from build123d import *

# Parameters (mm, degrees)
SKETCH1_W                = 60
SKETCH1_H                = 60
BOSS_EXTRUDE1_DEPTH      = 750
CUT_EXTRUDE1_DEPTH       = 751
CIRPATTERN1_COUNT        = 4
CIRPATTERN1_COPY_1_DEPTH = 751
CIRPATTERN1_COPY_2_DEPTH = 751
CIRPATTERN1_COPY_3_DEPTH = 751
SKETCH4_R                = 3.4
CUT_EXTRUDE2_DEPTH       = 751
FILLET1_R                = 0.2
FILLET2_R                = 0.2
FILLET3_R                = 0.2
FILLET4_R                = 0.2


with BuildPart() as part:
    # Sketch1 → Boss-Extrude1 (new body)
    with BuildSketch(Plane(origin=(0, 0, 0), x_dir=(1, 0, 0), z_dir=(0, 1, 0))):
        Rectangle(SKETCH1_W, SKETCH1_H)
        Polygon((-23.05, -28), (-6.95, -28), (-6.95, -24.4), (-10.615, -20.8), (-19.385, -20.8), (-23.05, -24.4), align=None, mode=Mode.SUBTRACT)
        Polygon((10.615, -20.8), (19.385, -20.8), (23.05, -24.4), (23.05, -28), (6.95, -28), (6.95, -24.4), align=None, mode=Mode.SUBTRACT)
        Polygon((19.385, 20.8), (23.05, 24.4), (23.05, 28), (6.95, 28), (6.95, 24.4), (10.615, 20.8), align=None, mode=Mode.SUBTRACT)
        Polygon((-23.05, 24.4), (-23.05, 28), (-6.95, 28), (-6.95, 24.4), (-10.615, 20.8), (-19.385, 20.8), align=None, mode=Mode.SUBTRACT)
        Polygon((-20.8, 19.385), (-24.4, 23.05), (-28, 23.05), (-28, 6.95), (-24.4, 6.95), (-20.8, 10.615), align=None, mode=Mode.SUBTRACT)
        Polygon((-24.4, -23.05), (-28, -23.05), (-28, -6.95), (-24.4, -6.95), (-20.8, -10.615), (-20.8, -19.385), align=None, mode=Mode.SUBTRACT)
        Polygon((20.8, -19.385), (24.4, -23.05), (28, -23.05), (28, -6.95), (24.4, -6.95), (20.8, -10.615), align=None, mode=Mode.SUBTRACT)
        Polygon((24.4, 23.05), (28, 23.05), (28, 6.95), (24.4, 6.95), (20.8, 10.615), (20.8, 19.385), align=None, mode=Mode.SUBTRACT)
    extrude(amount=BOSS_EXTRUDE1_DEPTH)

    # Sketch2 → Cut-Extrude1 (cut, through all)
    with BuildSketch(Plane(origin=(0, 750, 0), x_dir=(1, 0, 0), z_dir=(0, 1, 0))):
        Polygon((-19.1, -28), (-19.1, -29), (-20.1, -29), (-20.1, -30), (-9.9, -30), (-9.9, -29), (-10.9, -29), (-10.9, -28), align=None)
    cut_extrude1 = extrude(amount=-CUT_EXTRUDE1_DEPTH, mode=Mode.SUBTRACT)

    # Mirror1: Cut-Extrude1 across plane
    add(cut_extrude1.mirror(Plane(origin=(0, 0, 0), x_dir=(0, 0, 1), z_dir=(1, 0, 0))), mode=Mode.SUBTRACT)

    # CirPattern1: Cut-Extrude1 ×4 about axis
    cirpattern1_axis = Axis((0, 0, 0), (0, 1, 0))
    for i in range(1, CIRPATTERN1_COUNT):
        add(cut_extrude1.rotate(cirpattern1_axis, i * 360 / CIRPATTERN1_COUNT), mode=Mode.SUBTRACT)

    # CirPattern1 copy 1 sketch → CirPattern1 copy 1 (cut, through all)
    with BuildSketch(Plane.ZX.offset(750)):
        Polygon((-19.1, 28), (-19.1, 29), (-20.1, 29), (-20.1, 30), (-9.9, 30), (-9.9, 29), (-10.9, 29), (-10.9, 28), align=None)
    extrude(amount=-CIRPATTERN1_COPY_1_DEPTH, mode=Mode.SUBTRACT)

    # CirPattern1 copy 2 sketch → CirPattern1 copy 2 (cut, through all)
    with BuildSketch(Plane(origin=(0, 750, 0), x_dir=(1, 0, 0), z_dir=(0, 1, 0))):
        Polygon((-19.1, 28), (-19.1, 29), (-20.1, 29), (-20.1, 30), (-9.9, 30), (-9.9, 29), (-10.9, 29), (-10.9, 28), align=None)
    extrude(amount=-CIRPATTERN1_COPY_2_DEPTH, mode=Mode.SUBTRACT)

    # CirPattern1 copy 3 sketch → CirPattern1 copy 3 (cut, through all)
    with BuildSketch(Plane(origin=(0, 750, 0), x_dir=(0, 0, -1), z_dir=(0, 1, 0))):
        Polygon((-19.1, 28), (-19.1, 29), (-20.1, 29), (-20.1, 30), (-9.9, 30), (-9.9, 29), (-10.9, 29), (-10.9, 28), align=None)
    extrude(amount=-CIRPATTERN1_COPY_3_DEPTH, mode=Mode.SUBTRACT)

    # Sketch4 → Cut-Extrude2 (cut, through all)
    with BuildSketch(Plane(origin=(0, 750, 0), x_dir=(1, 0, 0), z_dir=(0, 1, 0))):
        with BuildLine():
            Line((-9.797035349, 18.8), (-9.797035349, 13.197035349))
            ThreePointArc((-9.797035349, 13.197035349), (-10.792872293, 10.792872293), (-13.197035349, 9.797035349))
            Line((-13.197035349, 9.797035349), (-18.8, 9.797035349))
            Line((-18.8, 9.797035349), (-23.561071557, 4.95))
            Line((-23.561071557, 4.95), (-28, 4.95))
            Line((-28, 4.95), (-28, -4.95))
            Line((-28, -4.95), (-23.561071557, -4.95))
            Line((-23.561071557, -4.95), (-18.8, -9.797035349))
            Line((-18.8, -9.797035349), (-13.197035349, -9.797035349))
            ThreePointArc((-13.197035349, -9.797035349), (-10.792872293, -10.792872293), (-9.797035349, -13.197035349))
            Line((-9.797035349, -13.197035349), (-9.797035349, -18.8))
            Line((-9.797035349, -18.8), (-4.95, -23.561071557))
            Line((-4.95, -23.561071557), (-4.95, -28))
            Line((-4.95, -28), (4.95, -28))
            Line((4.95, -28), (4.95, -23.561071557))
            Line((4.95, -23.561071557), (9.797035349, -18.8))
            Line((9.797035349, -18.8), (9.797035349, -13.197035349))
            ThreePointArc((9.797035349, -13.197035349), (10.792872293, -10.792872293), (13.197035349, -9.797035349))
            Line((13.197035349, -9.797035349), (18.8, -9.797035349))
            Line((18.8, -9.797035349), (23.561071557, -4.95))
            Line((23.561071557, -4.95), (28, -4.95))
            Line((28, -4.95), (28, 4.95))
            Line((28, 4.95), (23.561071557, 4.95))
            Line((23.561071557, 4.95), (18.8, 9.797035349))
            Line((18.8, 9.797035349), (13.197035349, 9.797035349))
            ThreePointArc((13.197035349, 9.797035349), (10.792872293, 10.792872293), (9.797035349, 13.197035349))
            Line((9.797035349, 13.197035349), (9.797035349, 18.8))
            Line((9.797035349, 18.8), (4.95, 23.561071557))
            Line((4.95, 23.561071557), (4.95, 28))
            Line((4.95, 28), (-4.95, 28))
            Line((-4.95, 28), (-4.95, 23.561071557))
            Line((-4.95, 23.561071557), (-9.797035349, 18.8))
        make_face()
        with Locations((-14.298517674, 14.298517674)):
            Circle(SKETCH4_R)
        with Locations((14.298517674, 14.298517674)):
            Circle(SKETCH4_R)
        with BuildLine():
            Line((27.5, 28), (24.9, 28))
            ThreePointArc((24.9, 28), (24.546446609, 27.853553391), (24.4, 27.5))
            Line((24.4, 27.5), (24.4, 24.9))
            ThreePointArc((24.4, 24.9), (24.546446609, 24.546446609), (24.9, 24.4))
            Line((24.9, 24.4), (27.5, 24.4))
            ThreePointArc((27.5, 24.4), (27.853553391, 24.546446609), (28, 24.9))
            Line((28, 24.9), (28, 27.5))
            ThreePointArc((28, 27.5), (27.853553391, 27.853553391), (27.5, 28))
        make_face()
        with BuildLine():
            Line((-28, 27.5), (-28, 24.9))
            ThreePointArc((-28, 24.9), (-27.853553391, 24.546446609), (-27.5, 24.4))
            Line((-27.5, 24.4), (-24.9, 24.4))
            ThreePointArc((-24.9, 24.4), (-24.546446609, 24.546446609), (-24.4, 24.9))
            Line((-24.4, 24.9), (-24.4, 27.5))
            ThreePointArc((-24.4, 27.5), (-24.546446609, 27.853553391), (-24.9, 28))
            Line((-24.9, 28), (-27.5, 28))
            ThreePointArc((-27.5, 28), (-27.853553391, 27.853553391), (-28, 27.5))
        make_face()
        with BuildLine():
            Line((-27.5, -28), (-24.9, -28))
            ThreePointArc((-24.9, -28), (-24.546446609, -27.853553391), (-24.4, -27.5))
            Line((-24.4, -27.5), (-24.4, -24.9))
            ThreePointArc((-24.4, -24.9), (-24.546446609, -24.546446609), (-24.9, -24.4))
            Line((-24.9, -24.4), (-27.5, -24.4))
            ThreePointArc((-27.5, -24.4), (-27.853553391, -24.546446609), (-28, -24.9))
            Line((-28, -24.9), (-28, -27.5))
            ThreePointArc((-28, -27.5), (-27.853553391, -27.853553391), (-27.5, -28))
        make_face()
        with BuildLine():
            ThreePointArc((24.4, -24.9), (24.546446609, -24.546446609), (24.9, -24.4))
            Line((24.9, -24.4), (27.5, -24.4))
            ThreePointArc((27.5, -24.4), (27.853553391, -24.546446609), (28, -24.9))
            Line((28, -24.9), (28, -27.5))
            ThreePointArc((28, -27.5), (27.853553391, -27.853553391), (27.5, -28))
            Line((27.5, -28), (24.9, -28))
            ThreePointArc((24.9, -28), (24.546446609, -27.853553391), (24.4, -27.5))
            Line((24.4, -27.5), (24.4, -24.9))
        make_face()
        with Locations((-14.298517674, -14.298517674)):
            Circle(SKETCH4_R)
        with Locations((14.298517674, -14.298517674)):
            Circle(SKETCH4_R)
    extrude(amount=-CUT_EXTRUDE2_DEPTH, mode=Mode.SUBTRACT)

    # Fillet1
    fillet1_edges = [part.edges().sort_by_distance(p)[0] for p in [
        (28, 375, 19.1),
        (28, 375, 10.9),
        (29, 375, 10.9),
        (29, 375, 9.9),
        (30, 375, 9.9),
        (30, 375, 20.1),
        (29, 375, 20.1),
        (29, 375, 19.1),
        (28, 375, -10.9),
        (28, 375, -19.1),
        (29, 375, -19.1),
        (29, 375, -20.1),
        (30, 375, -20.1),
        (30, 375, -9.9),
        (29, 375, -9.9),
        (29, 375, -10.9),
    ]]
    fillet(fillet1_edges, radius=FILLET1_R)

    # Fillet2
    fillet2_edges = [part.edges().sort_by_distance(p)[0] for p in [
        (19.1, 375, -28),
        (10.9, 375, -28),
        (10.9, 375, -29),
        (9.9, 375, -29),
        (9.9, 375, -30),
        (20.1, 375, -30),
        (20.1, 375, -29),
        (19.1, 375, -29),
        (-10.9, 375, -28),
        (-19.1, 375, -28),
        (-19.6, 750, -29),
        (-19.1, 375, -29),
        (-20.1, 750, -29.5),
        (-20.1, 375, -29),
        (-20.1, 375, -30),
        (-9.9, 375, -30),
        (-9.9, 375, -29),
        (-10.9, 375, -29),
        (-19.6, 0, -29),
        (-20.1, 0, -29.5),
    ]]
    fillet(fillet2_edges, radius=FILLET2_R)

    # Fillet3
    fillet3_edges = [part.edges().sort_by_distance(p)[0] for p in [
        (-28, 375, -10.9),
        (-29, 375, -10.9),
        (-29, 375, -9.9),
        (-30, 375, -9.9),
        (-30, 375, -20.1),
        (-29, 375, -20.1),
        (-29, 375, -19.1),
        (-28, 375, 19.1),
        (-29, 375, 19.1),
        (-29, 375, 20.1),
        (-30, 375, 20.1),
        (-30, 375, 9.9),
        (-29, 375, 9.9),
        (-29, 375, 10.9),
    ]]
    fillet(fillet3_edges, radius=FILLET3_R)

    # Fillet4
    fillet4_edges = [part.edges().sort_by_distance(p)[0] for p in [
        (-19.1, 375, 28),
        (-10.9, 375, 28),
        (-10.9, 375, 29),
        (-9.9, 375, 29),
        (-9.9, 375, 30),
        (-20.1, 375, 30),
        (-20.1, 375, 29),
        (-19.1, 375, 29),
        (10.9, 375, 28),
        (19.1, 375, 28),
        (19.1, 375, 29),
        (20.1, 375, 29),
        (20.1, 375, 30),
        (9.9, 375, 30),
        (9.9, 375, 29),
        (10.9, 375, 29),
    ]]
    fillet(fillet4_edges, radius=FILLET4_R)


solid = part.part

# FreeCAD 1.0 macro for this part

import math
import FreeCAD as App
import Part
import Sketcher
Q = App.Units.Quantity


def edges_at(feature, points):
    """Names of the edges that pass closest to the given points."""
    edges = feature.Shape.Edges
    near = lambda p: min(range(len(edges)), key=lambda i: edges[i].distToShape(Part.Vertex(*p))[0])
    return sorted({f"Edge{near(p) + 1}" for p in points})


def add_polygon(sketch, points):
    """Adds a closed chain of lines whose ends are joined by coincident constraints."""
    first, n = sketch.GeometryCount, len(points)
    for a, b in zip(points, points[1:] + points[:1]):
        sketch.addGeometry(Part.LineSegment(App.Vector(*a, 0), App.Vector(*b, 0)), False)
    for i in range(n):
        sketch.addConstraint(Sketcher.Constraint("Coincident", first + i, 2, first + (i + 1) % n, 1))

doc = App.newDocument("Part")
body = doc.addObject("PartDesign::Body", "Body")

# Sketch on XZ plane
sketch1 = body.newObject("Sketcher::SketchObject", "Sketch")
sketch1.AttachmentSupport = (doc.getObject("XZ_Plane"), [""])
sketch1.MapMode = "FlatFace"
add_polygon(sketch1, [(-30, -30), (-30, 30), (30, 30), (30, -30)])  # lines 0-3
add_polygon(sketch1, [(-7, 28), (-23.1, 28), (-23.1, 24.4), (-19.4, 20.8), (-10.6, 20.8), (-7, 24.4)])  # lines 4-9
add_polygon(sketch1, [(-20.8, 19.4), (-24.4, 23.1), (-28, 23.1), (-28, 7), (-24.4, 7), (-20.8, 10.6)])  # lines 10-15
add_polygon(sketch1, [(7, 24.4), (10.6, 20.8), (19.4, 20.8), (23.1, 24.4), (23.1, 28), (7, 28)])  # lines 16-21
add_polygon(sketch1, [(24.4, 23.1), (20.8, 19.4), (20.8, 10.6), (24.4, 7), (28, 7), (28, 23.1)])  # lines 22-27
add_polygon(sketch1, [(-24.4, -23.1), (-20.8, -19.4), (-20.8, -10.6), (-24.4, -7), (-28, -7), (-28, -23.1)])  # lines 28-33
add_polygon(sketch1, [(-19.4, -20.8), (-23.1, -24.4), (-23.1, -28), (-7, -28), (-7, -24.4), (-10.6, -20.8)])  # lines 34-39
add_polygon(sketch1, [(20.8, -19.4), (24.4, -23.1), (28, -23.1), (28, -7), (24.4, -7), (20.8, -10.6)])  # lines 40-45
add_polygon(sketch1, [(23.1, -24.4), (19.4, -20.8), (10.6, -20.8), (7, -24.4), (7, -28), (23.1, -28)])  # lines 46-51
sketch1.addConstraint([
    Sketcher.Constraint("Vertical", 0),
    Sketcher.Constraint("Horizontal", 1),
    Sketcher.Constraint("Vertical", 2),
    Sketcher.Constraint("Horizontal", 3),
    Sketcher.Constraint("Horizontal", 4),
    Sketcher.Constraint("Vertical", 5),
    Sketcher.Constraint("Horizontal", 7),
    Sketcher.Constraint("Vertical", 9),
    Sketcher.Constraint("Horizontal", 11),
    Sketcher.Constraint("Vertical", 12),
    Sketcher.Constraint("Horizontal", 13),
    Sketcher.Constraint("Vertical", 15),
    Sketcher.Constraint("Horizontal", 17),
    Sketcher.Constraint("Vertical", 19),
    Sketcher.Constraint("Horizontal", 20),
    Sketcher.Constraint("Vertical", 21),
    Sketcher.Constraint("Vertical", 23),
    Sketcher.Constraint("Horizontal", 25),
    Sketcher.Constraint("Vertical", 26),
    Sketcher.Constraint("Horizontal", 27),
    Sketcher.Constraint("Vertical", 29),
    Sketcher.Constraint("Horizontal", 31),
    Sketcher.Constraint("Vertical", 32),
    Sketcher.Constraint("Horizontal", 33),
    Sketcher.Constraint("Vertical", 35),
    Sketcher.Constraint("Horizontal", 36),
    Sketcher.Constraint("Vertical", 37),
    Sketcher.Constraint("Horizontal", 39),
    Sketcher.Constraint("Horizontal", 41),
    Sketcher.Constraint("Vertical", 42),
    Sketcher.Constraint("Horizontal", 43),
    Sketcher.Constraint("Vertical", 45),
    Sketcher.Constraint("Horizontal", 47),
    Sketcher.Constraint("Vertical", 49),
    Sketcher.Constraint("Horizontal", 50),
    Sketcher.Constraint("Vertical", 51),
    Sketcher.Constraint("Symmetric", 0, 2, 2, 2, -1, 1),
    Sketcher.Constraint("Symmetric", 22, 2, 28, 2, -1, 1),
    Sketcher.Constraint("Symmetric", 24, 2, 30, 2, -1, 1),
    Sketcher.Constraint("Symmetric", 26, 2, 32, 2, -1, 1),
    Sketcher.Constraint("Symmetric", 18, 2, 34, 2, -1, 1),
    Sketcher.Constraint("Symmetric", 20, 2, 36, 2, -1, 1),
    Sketcher.Constraint("Symmetric", 16, 2, 38, 2, -1, 1),
    Sketcher.Constraint("Symmetric", 10, 2, 40, 2, -1, 1),
    Sketcher.Constraint("Symmetric", 12, 2, 42, 2, -1, 1),
    Sketcher.Constraint("Symmetric", 14, 2, 44, 2, -1, 1),
    Sketcher.Constraint("Symmetric", 6, 2, 46, 2, -1, 1),
    Sketcher.Constraint("Symmetric", 8, 2, 48, 2, -1, 1),
    Sketcher.Constraint("Symmetric", 4, 2, 50, 2, -1, 1),
    Sketcher.Constraint("Symmetric", 7, 2, 16, 2, -2),
    Sketcher.Constraint("Symmetric", 5, 2, 18, 2, -2),
    Sketcher.Constraint("Symmetric", 9, 2, 20, 2, -2),
    Sketcher.Constraint("Symmetric", 15, 2, 22, 2, -2),
    Sketcher.Constraint("Symmetric", 13, 2, 24, 2, -2),
    Sketcher.Constraint("Symmetric", 11, 2, 26, 2, -2),
    Sketcher.Constraint("Perpendicular", 8, 10),
    Sketcher.Constraint("Perpendicular", 6, 14),
    Sketcher.Constraint("Perpendicular", 14, 16),
    Sketcher.Constraint("Perpendicular", 10, 18),
    Sketcher.Constraint("Perpendicular", 16, 22),
    Sketcher.Constraint("Perpendicular", 18, 24),
    Sketcher.Constraint("Parallel", 22, 28),
    Sketcher.Constraint("Parallel", 24, 30),
    Sketcher.Constraint("Perpendicular", 30, 34),
    Sketcher.Constraint("Perpendicular", 28, 38),
    Sketcher.Constraint("Perpendicular", 34, 40),
    Sketcher.Constraint("Perpendicular", 38, 44),
    Sketcher.Constraint("Perpendicular", 44, 46),
    Sketcher.Constraint("Perpendicular", 40, 48),
    Sketcher.Constraint("Horizontal", 5, 2, 8, 2),
    Sketcher.Constraint("Horizontal", 18, 2, 21, 2),
    Sketcher.Constraint("Vertical", 10, 2, 13, 2),
    Sketcher.Constraint("Equal", 3, 0),
    Sketcher.Constraint("Equal", 43, 5),
    Sketcher.Constraint("Equal", 50, 12),
    Sketcher.Constraint("Equal", 47, 15),
    Sketcher.Constraint("DistanceX", 1, 1, 1, 2, Q("60 mm")),
    Sketcher.Constraint("DistanceX", 4, 2, 4, 1, Q("16.1 mm")),
    Sketcher.Constraint("DistanceX", 11, 2, 11, 1, Q("3.6 mm")),
    Sketcher.Constraint("DistanceY", -1, 1, 4, 2, Q("28 mm")),
    Sketcher.Constraint("DistanceX", 11, 2, -1, 1, Q("28 mm")),
    Sketcher.Constraint("DistanceX", 6, 2, 16, 2, Q("30 mm")),
    Sketcher.Constraint("DistanceY", 28, 2, 14, 2, Q("30 mm")),
    Sketcher.Constraint("DistanceX", 7, 1, 7, 2, Q("8.77 mm")),
    Sketcher.Constraint("DistanceY", -1, 1, 6, 2, Q("20.8 mm")),
])
pad1 = body.newObject("PartDesign::Pad", "Pad")
pad1.Profile = sketch1
pad1.Length = 750
pad1.Reversed = True

# Sketch on XZ plane
sketch2 = body.newObject("Sketcher::SketchObject", "Sketch001")
sketch2.AttachmentSupport = (doc.getObject("XZ_Plane"), [""])
sketch2.MapMode = "FlatFace"
sketch2.AttachmentOffset = App.Placement(App.Vector(0, 0, -750), App.Rotation())
add_polygon(sketch2, [(-19.1, 28), (-19.1, 29), (-20.1, 29), (-20.1, 30), (-9.9, 30), (-9.9, 29), (-10.9, 29), (-10.9, 28)])  # lines 0-7
sketch2.addConstraint([
    Sketcher.Constraint("Vertical", 0),
    Sketcher.Constraint("Horizontal", 1),
    Sketcher.Constraint("Vertical", 2),
    Sketcher.Constraint("Horizontal", 3),
    Sketcher.Constraint("Vertical", 4),
    Sketcher.Constraint("Horizontal", 5),
    Sketcher.Constraint("Vertical", 6),
    Sketcher.Constraint("Horizontal", 7),
    Sketcher.Constraint("Horizontal", 1, 2, 4, 2),
    Sketcher.Constraint("Equal", 1, 5),
    Sketcher.Constraint("Equal", 5, 0),
    Sketcher.Constraint("Equal", 0, 2),
    Sketcher.Constraint("DistanceX", 1, 2, 1, 1, Q("1 mm")),
    Sketcher.Constraint("DistanceX", 3, 1, 3, 2, Q("10.2 mm")),
    Sketcher.Constraint("DistanceY", -1, 1, 0, 2, Q("29 mm")),
    Sketcher.Constraint("DistanceX", 0, 2, -1, 1, Q("19.1 mm")),
])
pocket1 = body.newObject("PartDesign::Pocket", "Pocket")
pocket1.Profile = sketch2
pocket1.Type = "ThroughAll"
pocket1.Reversed = True
doc.recompute()

mirrored = body.newObject("PartDesign::Mirrored", "Mirrored")
mirrored.Originals = [pocket1]
mirrored.MirrorPlane = (doc.getObject("YZ_Plane"), [""])
body.Tip = mirrored
doc.recompute()

polarpattern = body.newObject("PartDesign::PolarPattern", "PolarPattern")
polarpattern.Originals = [pocket1]
polarpattern.Axis = (doc.getObject("Y_Axis"), [""])
polarpattern.Angle = 360
polarpattern.Occurrences = 4
body.Tip = polarpattern

# Sketch on XZ plane
sketch3 = body.newObject("Sketcher::SketchObject", "Sketch002")
sketch3.AttachmentSupport = (doc.getObject("XZ_Plane"), [""])
sketch3.MapMode = "FlatFace"
sketch3.AttachmentOffset = App.Placement(App.Vector(0, 0, -750), App.Rotation())
add_polygon(sketch3, [(29, -19.1), (28, -19.1), (28, -10.9), (29, -10.9), (29, -9.9), (30, -9.9), (30, -20.1), (29, -20.1)])  # lines 0-7
sketch3.addConstraint([
    Sketcher.Constraint("Horizontal", 0),
    Sketcher.Constraint("Vertical", 1),
    Sketcher.Constraint("Horizontal", 2),
    Sketcher.Constraint("Vertical", 3),
    Sketcher.Constraint("Horizontal", 4),
    Sketcher.Constraint("Vertical", 5),
    Sketcher.Constraint("Horizontal", 6),
    Sketcher.Constraint("Vertical", 7),
    Sketcher.Constraint("Vertical", 3, 2, 6, 2),
    Sketcher.Constraint("Equal", 2, 4),
    Sketcher.Constraint("Equal", 6, 3),
    Sketcher.Constraint("Equal", 3, 7),
    Sketcher.Constraint("DistanceX", 0, 2, 0, 1, Q("1 mm")),
    Sketcher.Constraint("DistanceY", 1, 1, 1, 2, Q("8.2 mm")),
    Sketcher.Constraint("DistanceX", -1, 1, 0, 2, Q("28 mm")),
    Sketcher.Constraint("DistanceY", 0, 2, -1, 1, Q("19.1 mm")),
])
pocket2 = body.newObject("PartDesign::Pocket", "Pocket001")
pocket2.Profile = sketch3
pocket2.Type = "ThroughAll"
pocket2.Reversed = True

# Sketch on XZ plane
sketch4 = body.newObject("Sketcher::SketchObject", "Sketch003")
sketch4.AttachmentSupport = (doc.getObject("XZ_Plane"), [""])
sketch4.MapMode = "FlatFace"
sketch4.AttachmentOffset = App.Placement(App.Vector(0, 0, -750), App.Rotation())
add_polygon(sketch4, [(-19.1, -29), (-19.1, -28), (-10.9, -28), (-10.9, -29), (-9.9, -29), (-9.9, -30), (-20.1, -30), (-20.1, -29)])  # lines 0-7
sketch4.addConstraint([
    Sketcher.Constraint("Vertical", 0),
    Sketcher.Constraint("Horizontal", 1),
    Sketcher.Constraint("Vertical", 2),
    Sketcher.Constraint("Horizontal", 3),
    Sketcher.Constraint("Vertical", 4),
    Sketcher.Constraint("Horizontal", 5),
    Sketcher.Constraint("Vertical", 6),
    Sketcher.Constraint("Horizontal", 7),
    Sketcher.Constraint("Horizontal", 3, 2, 6, 2),
    Sketcher.Constraint("Equal", 3, 7),
    Sketcher.Constraint("Equal", 7, 0),
    Sketcher.Constraint("Equal", 2, 4),
    Sketcher.Constraint("DistanceX", 3, 1, 3, 2, Q("1 mm")),
    Sketcher.Constraint("DistanceX", 1, 1, 1, 2, Q("8.2 mm")),
    Sketcher.Constraint("DistanceY", 0, 2, -1, 1, Q("28 mm")),
    Sketcher.Constraint("DistanceX", 0, 2, -1, 1, Q("19.1 mm")),
])
pocket3 = body.newObject("PartDesign::Pocket", "Pocket002")
pocket3.Profile = sketch4
pocket3.Type = "ThroughAll"
pocket3.Reversed = True

# Sketch on XZ plane
sketch5 = body.newObject("Sketcher::SketchObject", "Sketch004")
sketch5.AttachmentSupport = (doc.getObject("XZ_Plane"), [""])
sketch5.MapMode = "FlatFace"
sketch5.AttachmentOffset = App.Placement(App.Vector(0, 0, -750), App.Rotation())
add_polygon(sketch5, [(-29, 19.1), (-28, 19.1), (-28, 10.9), (-29, 10.9), (-29, 9.9), (-30, 9.9), (-30, 20.1), (-29, 20.1)])  # lines 0-7
sketch5.addConstraint([
    Sketcher.Constraint("Horizontal", 0),
    Sketcher.Constraint("Vertical", 1),
    Sketcher.Constraint("Horizontal", 2),
    Sketcher.Constraint("Vertical", 3),
    Sketcher.Constraint("Horizontal", 4),
    Sketcher.Constraint("Vertical", 5),
    Sketcher.Constraint("Horizontal", 6),
    Sketcher.Constraint("Vertical", 7),
    Sketcher.Constraint("Vertical", 3, 2, 6, 2),
    Sketcher.Constraint("Equal", 2, 4),
    Sketcher.Constraint("Equal", 6, 3),
    Sketcher.Constraint("Equal", 3, 7),
    Sketcher.Constraint("DistanceX", 0, 1, 0, 2, Q("1 mm")),
    Sketcher.Constraint("DistanceY", 1, 2, 1, 1, Q("8.2 mm")),
    Sketcher.Constraint("DistanceX", 0, 2, -1, 1, Q("28 mm")),
    Sketcher.Constraint("DistanceY", -1, 1, 0, 2, Q("19.1 mm")),
])
pocket4 = body.newObject("PartDesign::Pocket", "Pocket003")
pocket4.Profile = sketch5
pocket4.Type = "ThroughAll"
pocket4.Reversed = True

# Sketch on XZ plane
sketch6 = body.newObject("Sketcher::SketchObject", "Sketch005")
sketch6.AttachmentSupport = (doc.getObject("XZ_Plane"), [""])
sketch6.MapMode = "FlatFace"
sketch6.AttachmentOffset = App.Placement(App.Vector(0, 0, -750), App.Rotation())
sketch6.addGeometry([
    Part.LineSegment(App.Vector(-9.8, -18.8, 0), App.Vector(-9.8, -13.2, 0)),  # 0
    Part.ArcOfCircle(Part.Circle(App.Vector(-13.2, -13.2, 0), App.Vector(0, 0, 1), 3.4), math.radians(0), math.radians(90)),  # 1
    Part.LineSegment(App.Vector(-13.2, -9.8, 0), App.Vector(-18.8, -9.8, 0)),  # 2
    Part.LineSegment(App.Vector(-18.8, -9.8, 0), App.Vector(-23.56, -4.95, 0)),  # 3
    Part.LineSegment(App.Vector(-23.56, -4.95, 0), App.Vector(-28, -4.95, 0)),  # 4
    Part.LineSegment(App.Vector(-28, -4.95, 0), App.Vector(-28, 4.95, 0)),  # 5
    Part.LineSegment(App.Vector(-28, 4.95, 0), App.Vector(-23.56, 4.95, 0)),  # 6
    Part.LineSegment(App.Vector(-23.56, 4.95, 0), App.Vector(-18.8, 9.8, 0)),  # 7
    Part.LineSegment(App.Vector(-18.8, 9.8, 0), App.Vector(-13.2, 9.8, 0)),  # 8
    Part.ArcOfCircle(Part.Circle(App.Vector(-13.2, 13.2, 0), App.Vector(0, 0, 1), 3.4), math.radians(-90), math.radians(0)),  # 9
    Part.LineSegment(App.Vector(-9.8, 13.2, 0), App.Vector(-9.8, 18.8, 0)),  # 10
    Part.LineSegment(App.Vector(-9.8, 18.8, 0), App.Vector(-4.95, 23.56, 0)),  # 11
    Part.LineSegment(App.Vector(-4.95, 23.56, 0), App.Vector(-4.95, 28, 0)),  # 12
    Part.LineSegment(App.Vector(-4.95, 28, 0), App.Vector(4.95, 28, 0)),  # 13
    Part.LineSegment(App.Vector(4.95, 28, 0), App.Vector(4.95, 23.56, 0)),  # 14
    Part.LineSegment(App.Vector(4.95, 23.56, 0), App.Vector(9.8, 18.8, 0)),  # 15
    Part.LineSegment(App.Vector(9.8, 18.8, 0), App.Vector(9.8, 13.2, 0)),  # 16
    Part.ArcOfCircle(Part.Circle(App.Vector(13.2, 13.2, 0), App.Vector(0, 0, 1), 3.4), math.radians(180), math.radians(270)),  # 17
    Part.LineSegment(App.Vector(13.2, 9.8, 0), App.Vector(18.8, 9.8, 0)),  # 18
    Part.LineSegment(App.Vector(18.8, 9.8, 0), App.Vector(23.56, 4.95, 0)),  # 19
    Part.LineSegment(App.Vector(23.56, 4.95, 0), App.Vector(28, 4.95, 0)),  # 20
    Part.LineSegment(App.Vector(28, 4.95, 0), App.Vector(28, -4.95, 0)),  # 21
    Part.LineSegment(App.Vector(28, -4.95, 0), App.Vector(23.56, -4.95, 0)),  # 22
    Part.LineSegment(App.Vector(23.56, -4.95, 0), App.Vector(18.8, -9.8, 0)),  # 23
    Part.LineSegment(App.Vector(18.8, -9.8, 0), App.Vector(13.2, -9.8, 0)),  # 24
    Part.ArcOfCircle(Part.Circle(App.Vector(13.2, -13.2, 0), App.Vector(0, 0, 1), 3.4), math.radians(90), math.radians(180)),  # 25
    Part.LineSegment(App.Vector(9.8, -13.2, 0), App.Vector(9.8, -18.8, 0)),  # 26
    Part.LineSegment(App.Vector(9.8, -18.8, 0), App.Vector(4.95, -23.56, 0)),  # 27
    Part.LineSegment(App.Vector(4.95, -23.56, 0), App.Vector(4.95, -28, 0)),  # 28
    Part.LineSegment(App.Vector(4.95, -28, 0), App.Vector(-4.95, -28, 0)),  # 29
    Part.LineSegment(App.Vector(-4.95, -28, 0), App.Vector(-4.95, -23.56, 0)),  # 30
    Part.LineSegment(App.Vector(-4.95, -23.56, 0), App.Vector(-9.8, -18.8, 0)),  # 31
    Part.Circle(App.Vector(-14.3, -14.3, 0), App.Vector(0, 0, 1), 3.4),  # 32
    Part.Circle(App.Vector(14.3, -14.3, 0), App.Vector(0, 0, 1), 3.4),  # 33
    Part.LineSegment(App.Vector(27.5, -28, 0), App.Vector(24.9, -28, 0)),  # 34
    Part.ArcOfCircle(Part.Circle(App.Vector(24.9, -27.5, 0), App.Vector(0, 0, 1), 0.5), math.radians(180), math.radians(270)),  # 35
    Part.LineSegment(App.Vector(24.4, -27.5, 0), App.Vector(24.4, -24.9, 0)),  # 36
    Part.ArcOfCircle(Part.Circle(App.Vector(24.9, -24.9, 0), App.Vector(0, 0, 1), 0.5), math.radians(90), math.radians(180)),  # 37
    Part.LineSegment(App.Vector(24.9, -24.4, 0), App.Vector(27.5, -24.4, 0)),  # 38
    Part.ArcOfCircle(Part.Circle(App.Vector(27.5, -24.9, 0), App.Vector(0, 0, 1), 0.5), math.radians(0), math.radians(90)),  # 39
    Part.LineSegment(App.Vector(28, -24.9, 0), App.Vector(28, -27.5, 0)),  # 40
    Part.ArcOfCircle(Part.Circle(App.Vector(27.5, -27.5, 0), App.Vector(0, 0, 1), 0.5), math.radians(-90), math.radians(0)),  # 41
    Part.LineSegment(App.Vector(-28, -27.5, 0), App.Vector(-28, -24.9, 0)),  # 42
    Part.ArcOfCircle(Part.Circle(App.Vector(-27.5, -24.9, 0), App.Vector(0, 0, 1), 0.5), math.radians(90), math.radians(180)),  # 43
    Part.LineSegment(App.Vector(-27.5, -24.4, 0), App.Vector(-24.9, -24.4, 0)),  # 44
    Part.ArcOfCircle(Part.Circle(App.Vector(-24.9, -24.9, 0), App.Vector(0, 0, 1), 0.5), math.radians(0), math.radians(90)),  # 45
    Part.LineSegment(App.Vector(-24.4, -24.9, 0), App.Vector(-24.4, -27.5, 0)),  # 46
    Part.ArcOfCircle(Part.Circle(App.Vector(-24.9, -27.5, 0), App.Vector(0, 0, 1), 0.5), math.radians(-90), math.radians(0)),  # 47
    Part.LineSegment(App.Vector(-24.9, -28, 0), App.Vector(-27.5, -28, 0)),  # 48
    Part.ArcOfCircle(Part.Circle(App.Vector(-27.5, -27.5, 0), App.Vector(0, 0, 1), 0.5), math.radians(180), math.radians(270)),  # 49
    Part.LineSegment(App.Vector(-27.5, 28, 0), App.Vector(-24.9, 28, 0)),  # 50
    Part.ArcOfCircle(Part.Circle(App.Vector(-24.9, 27.5, 0), App.Vector(0, 0, 1), 0.5), math.radians(0), math.radians(90)),  # 51
    Part.LineSegment(App.Vector(-24.4, 27.5, 0), App.Vector(-24.4, 24.9, 0)),  # 52
    Part.ArcOfCircle(Part.Circle(App.Vector(-24.9, 24.9, 0), App.Vector(0, 0, 1), 0.5), math.radians(-90), math.radians(0)),  # 53
    Part.LineSegment(App.Vector(-24.9, 24.4, 0), App.Vector(-27.5, 24.4, 0)),  # 54
    Part.ArcOfCircle(Part.Circle(App.Vector(-27.5, 24.9, 0), App.Vector(0, 0, 1), 0.5), math.radians(180), math.radians(270)),  # 55
    Part.LineSegment(App.Vector(-28, 24.9, 0), App.Vector(-28, 27.5, 0)),  # 56
    Part.ArcOfCircle(Part.Circle(App.Vector(-27.5, 27.5, 0), App.Vector(0, 0, 1), 0.5), math.radians(90), math.radians(180)),  # 57
    Part.ArcOfCircle(Part.Circle(App.Vector(24.9, 24.9, 0), App.Vector(0, 0, 1), 0.5), math.radians(180), math.radians(270)),  # 58
    Part.LineSegment(App.Vector(24.4, 24.9, 0), App.Vector(24.4, 27.5, 0)),  # 59
    Part.ArcOfCircle(Part.Circle(App.Vector(24.9, 27.5, 0), App.Vector(0, 0, 1), 0.5), math.radians(90), math.radians(180)),  # 60
    Part.LineSegment(App.Vector(24.9, 28, 0), App.Vector(27.5, 28, 0)),  # 61
    Part.ArcOfCircle(Part.Circle(App.Vector(27.5, 27.5, 0), App.Vector(0, 0, 1), 0.5), math.radians(0), math.radians(90)),  # 62
    Part.LineSegment(App.Vector(28, 27.5, 0), App.Vector(28, 24.9, 0)),  # 63
    Part.ArcOfCircle(Part.Circle(App.Vector(27.5, 24.9, 0), App.Vector(0, 0, 1), 0.5), math.radians(-90), math.radians(0)),  # 64
    Part.LineSegment(App.Vector(27.5, 24.4, 0), App.Vector(24.9, 24.4, 0)),  # 65
    Part.Circle(App.Vector(-14.3, 14.3, 0), App.Vector(0, 0, 1), 3.4),  # 66
    Part.Circle(App.Vector(14.3, 14.3, 0), App.Vector(0, 0, 1), 3.4),  # 67
], False)
sketch6.addConstraint([
    Sketcher.Constraint("Tangent", 0, 2, 1, 1),
    Sketcher.Constraint("Tangent", 1, 2, 2, 1),
    Sketcher.Constraint("Coincident", 2, 2, 3, 1),
    Sketcher.Constraint("Coincident", 3, 2, 4, 1),
    Sketcher.Constraint("Coincident", 4, 2, 5, 1),
    Sketcher.Constraint("Coincident", 5, 2, 6, 1),
    Sketcher.Constraint("Coincident", 6, 2, 7, 1),
    Sketcher.Constraint("Coincident", 7, 2, 8, 1),
    Sketcher.Constraint("Tangent", 8, 2, 9, 1),
    Sketcher.Constraint("Tangent", 9, 2, 10, 1),
    Sketcher.Constraint("Coincident", 10, 2, 11, 1),
    Sketcher.Constraint("Coincident", 11, 2, 12, 1),
    Sketcher.Constraint("Coincident", 12, 2, 13, 1),
    Sketcher.Constraint("Coincident", 13, 2, 14, 1),
    Sketcher.Constraint("Coincident", 14, 2, 15, 1),
    Sketcher.Constraint("Coincident", 15, 2, 16, 1),
    Sketcher.Constraint("Tangent", 16, 2, 17, 1),
    Sketcher.Constraint("Tangent", 17, 2, 18, 1),
    Sketcher.Constraint("Coincident", 18, 2, 19, 1),
    Sketcher.Constraint("Coincident", 19, 2, 20, 1),
    Sketcher.Constraint("Coincident", 20, 2, 21, 1),
    Sketcher.Constraint("Coincident", 21, 2, 22, 1),
    Sketcher.Constraint("Coincident", 22, 2, 23, 1),
    Sketcher.Constraint("Coincident", 23, 2, 24, 1),
    Sketcher.Constraint("Tangent", 24, 2, 25, 1),
    Sketcher.Constraint("Tangent", 25, 2, 26, 1),
    Sketcher.Constraint("Coincident", 26, 2, 27, 1),
    Sketcher.Constraint("Coincident", 27, 2, 28, 1),
    Sketcher.Constraint("Coincident", 28, 2, 29, 1),
    Sketcher.Constraint("Coincident", 29, 2, 30, 1),
    Sketcher.Constraint("Coincident", 30, 2, 31, 1),
    Sketcher.Constraint("Coincident", 31, 2, 0, 1),
    Sketcher.Constraint("Tangent", 34, 2, 35, 2),
    Sketcher.Constraint("Tangent", 35, 1, 36, 1),
    Sketcher.Constraint("Tangent", 36, 2, 37, 2),
    Sketcher.Constraint("Tangent", 37, 1, 38, 1),
    Sketcher.Constraint("Tangent", 38, 2, 39, 2),
    Sketcher.Constraint("Tangent", 39, 1, 40, 1),
    Sketcher.Constraint("Tangent", 40, 2, 41, 2),
    Sketcher.Constraint("Tangent", 41, 1, 34, 1),
    Sketcher.Constraint("Tangent", 42, 2, 43, 2),
    Sketcher.Constraint("Tangent", 43, 1, 44, 1),
    Sketcher.Constraint("Tangent", 44, 2, 45, 2),
    Sketcher.Constraint("Tangent", 45, 1, 46, 1),
    Sketcher.Constraint("Tangent", 46, 2, 47, 2),
    Sketcher.Constraint("Tangent", 47, 1, 48, 1),
    Sketcher.Constraint("Tangent", 48, 2, 49, 2),
    Sketcher.Constraint("Tangent", 49, 1, 42, 1),
    Sketcher.Constraint("Tangent", 50, 2, 51, 2),
    Sketcher.Constraint("Tangent", 51, 1, 52, 1),
    Sketcher.Constraint("Tangent", 52, 2, 53, 2),
    Sketcher.Constraint("Tangent", 53, 1, 54, 1),
    Sketcher.Constraint("Tangent", 54, 2, 55, 2),
    Sketcher.Constraint("Tangent", 55, 1, 56, 1),
    Sketcher.Constraint("Tangent", 56, 2, 57, 2),
    Sketcher.Constraint("Tangent", 57, 1, 50, 1),
    Sketcher.Constraint("Tangent", 58, 1, 59, 1),
    Sketcher.Constraint("Tangent", 59, 2, 60, 2),
    Sketcher.Constraint("Tangent", 60, 1, 61, 1),
    Sketcher.Constraint("Tangent", 61, 2, 62, 2),
    Sketcher.Constraint("Tangent", 62, 1, 63, 1),
    Sketcher.Constraint("Tangent", 63, 2, 64, 2),
    Sketcher.Constraint("Tangent", 64, 1, 65, 1),
    Sketcher.Constraint("Tangent", 65, 2, 58, 2),
    Sketcher.Constraint("Vertical", 0),
    Sketcher.Constraint("Horizontal", 2),
    Sketcher.Constraint("Horizontal", 4),
    Sketcher.Constraint("Vertical", 5),
    Sketcher.Constraint("Horizontal", 6),
    Sketcher.Constraint("Horizontal", 8),
    Sketcher.Constraint("Vertical", 10),
    Sketcher.Constraint("Vertical", 12),
    Sketcher.Constraint("Horizontal", 13),
    Sketcher.Constraint("Vertical", 14),
    Sketcher.Constraint("Vertical", 16),
    Sketcher.Constraint("Horizontal", 18),
    Sketcher.Constraint("Horizontal", 20),
    Sketcher.Constraint("Vertical", 21),
    Sketcher.Constraint("Horizontal", 22),
    Sketcher.Constraint("Horizontal", 24),
    Sketcher.Constraint("Vertical", 26),
    Sketcher.Constraint("Vertical", 28),
    Sketcher.Constraint("Horizontal", 29),
    Sketcher.Constraint("Vertical", 30),
    Sketcher.Constraint("Horizontal", 34),
    Sketcher.Constraint("Vertical", 36),
    Sketcher.Constraint("Horizontal", 38),
    Sketcher.Constraint("Vertical", 40),
    Sketcher.Constraint("Vertical", 42),
    Sketcher.Constraint("Horizontal", 44),
    Sketcher.Constraint("Vertical", 46),
    Sketcher.Constraint("Horizontal", 48),
    Sketcher.Constraint("Horizontal", 50),
    Sketcher.Constraint("Vertical", 52),
    Sketcher.Constraint("Horizontal", 54),
    Sketcher.Constraint("Vertical", 56),
    Sketcher.Constraint("Vertical", 59),
    Sketcher.Constraint("Horizontal", 61),
    Sketcher.Constraint("Vertical", 63),
    Sketcher.Constraint("Horizontal", 65),
    Sketcher.Constraint("Equal", 1, 9),
    Sketcher.Constraint("Equal", 9, 17),
    Sketcher.Constraint("Equal", 17, 25),
    Sketcher.Constraint("Equal", 25, 32),
    Sketcher.Constraint("Equal", 32, 33),
    Sketcher.Constraint("Equal", 35, 37),
    Sketcher.Constraint("Equal", 37, 39),
    Sketcher.Constraint("Equal", 39, 41),
    Sketcher.Constraint("Equal", 41, 43),
    Sketcher.Constraint("Equal", 43, 45),
    Sketcher.Constraint("Equal", 45, 47),
    Sketcher.Constraint("Equal", 47, 49),
    Sketcher.Constraint("Equal", 49, 51),
    Sketcher.Constraint("Equal", 51, 53),
    Sketcher.Constraint("Equal", 53, 55),
    Sketcher.Constraint("Equal", 55, 57),
    Sketcher.Constraint("Equal", 57, 58),
    Sketcher.Constraint("Equal", 58, 60),
    Sketcher.Constraint("Equal", 60, 62),
    Sketcher.Constraint("Equal", 62, 64),
    Sketcher.Constraint("Equal", 33, 66),
    Sketcher.Constraint("Equal", 66, 67),
    Sketcher.Constraint("Symmetric", 1, 3, 17, 3, -1, 1),
    Sketcher.Constraint("Symmetric", 9, 3, 25, 3, -1, 1),
    Sketcher.Constraint("Symmetric", 35, 3, 51, 3, -1, 1),
    Sketcher.Constraint("Symmetric", 39, 3, 55, 3, -1, 1),
    Sketcher.Constraint("Symmetric", 45, 3, 58, 3, -1, 1),
    Sketcher.Constraint("Symmetric", 49, 3, 62, 3, -1, 1),
    Sketcher.Constraint("Symmetric", 33, 3, 66, 3, -1, 1),
    Sketcher.Constraint("Symmetric", 32, 3, 67, 3, -1, 1),
    Sketcher.Constraint("Symmetric", 3, 2, 19, 2, -1, 1),
    Sketcher.Constraint("Symmetric", 5, 2, 21, 2, -1, 1),
    Sketcher.Constraint("Symmetric", 11, 2, 27, 2, -1, 1),
    Sketcher.Constraint("Symmetric", 13, 2, 29, 2, -1, 1),
    Sketcher.Constraint("Symmetric", 9, 3, 17, 3, -2),
    Sketcher.Constraint("Symmetric", 32, 3, 33, 3, -2),
    Sketcher.Constraint("Symmetric", 39, 3, 43, 3, -2),
    Sketcher.Constraint("Symmetric", 35, 3, 47, 3, -2),
    Sketcher.Constraint("Symmetric", 11, 2, 14, 2, -2),
    Sketcher.Constraint("Symmetric", 6, 2, 19, 2, -2),
    Sketcher.Constraint("Perpendicular", 3, 11),
    Sketcher.Constraint("Perpendicular", 7, 15),
    Sketcher.Constraint("Perpendicular", 11, 19),
    Sketcher.Constraint("Perpendicular", 15, 23),
    Sketcher.Constraint("Perpendicular", 19, 27),
    Sketcher.Constraint("Perpendicular", 23, 31),
    Sketcher.Constraint("Horizontal", 10, 2, 15, 2),
    Sketcher.Constraint("Horizontal", 27, 2, 30, 2),
    Sketcher.Constraint("Horizontal", 29, 2, 34, 2),
    Sketcher.Constraint("Vertical", 19, 2, 22, 2),
    Sketcher.Constraint("Vertical", 21, 2, 39, 1),
    Sketcher.Constraint("Equal", 24, 0),
    Sketcher.Constraint("Equal", 29, 5),
    Sketcher.Constraint("Equal", 22, 12),
    Sketcher.Constraint("Equal", 65, 36),
    Sketcher.Constraint("Equal", 7, 11),
    Sketcher.Constraint("Diameter", 32, Q("6.8 mm")),
    Sketcher.Constraint("Radius", 35, Q("0.5 mm")),
    Sketcher.Constraint("DistanceX", 13, 1, 13, 2, Q("9.9 mm")),
    Sketcher.Constraint("DistanceX", 34, 2, 34, 1, Q("2.6 mm")),
    Sketcher.Constraint("DistanceX", 4, 2, -1, 1, Q("28 mm")),
    Sketcher.Constraint("DistanceX", 2, 2, -1, 1, Q("18.8 mm")),
    Sketcher.Constraint("DistanceX", 4, 2, 4, 1, Q("4.438928 mm")),
    Sketcher.Constraint("Distance", 3, Q("6.794229 mm")),
    Sketcher.Constraint("DistanceX", 32, 3, -1, 1, Q("14.298518 mm")),
    Sketcher.Constraint("DistanceY", 32, 3, -1, 1, Q("14.298518 mm")),
])
pocket5 = body.newObject("PartDesign::Pocket", "Pocket004")
pocket5.Profile = sketch6
pocket5.Type = "ThroughAll"
pocket5.Reversed = True
doc.recompute()

fillet = body.newObject("PartDesign::Fillet", "Fillet")
fillet.Base = (pocket5, edges_at(pocket5, [
    (28, 375, 19.1),
    (28, 375, 10.9),
    (29, 375, 10.9),
    (29, 375, 9.9),
    (30, 375, 9.9),
    (30, 375, 20.1),
    (29, 375, 20.1),
    (29, 375, 19.1),
    (28, 375, -10.9),
    (28, 375, -19.1),
    (29, 375, -19.1),
    (29, 375, -20.1),
    (30, 375, -20.1),
    (30, 375, -9.9),
    (29, 375, -9.9),
    (29, 375, -10.9),
]))
fillet.Radius = 0.2
doc.recompute()

fillet2 = body.newObject("PartDesign::Fillet", "Fillet001")
fillet2.Base = (fillet, edges_at(fillet, [
    (19.1, 375, -28),
    (10.9, 375, -28),
    (10.9, 375, -29),
    (9.9, 375, -29),
    (9.9, 375, -30),
    (20.1, 375, -30),
    (20.1, 375, -29),
    (19.1, 375, -29),
    (-10.9, 375, -28),
    (-19.1, 375, -28),
    (-19.6, 750, -29),
    (-19.1, 375, -29),
    (-20.1, 750, -29.5),
    (-20.1, 375, -29),
    (-20.1, 375, -30),
    (-9.9, 375, -30),
    (-9.9, 375, -29),
    (-10.9, 375, -29),
    (-19.6, 0, -29),
    (-20.1, 0, -29.5),
]))
fillet2.Radius = 0.2
doc.recompute()

fillet3 = body.newObject("PartDesign::Fillet", "Fillet002")
fillet3.Base = (fillet2, edges_at(fillet2, [
    (-28, 375, -10.9),
    (-29, 375, -10.9),
    (-29, 375, -9.9),
    (-30, 375, -9.9),
    (-30, 375, -20.1),
    (-29, 375, -20.1),
    (-29, 375, -19.1),
    (-28, 375, 19.1),
    (-29, 375, 19.1),
    (-29, 375, 20.1),
    (-30, 375, 20.1),
    (-30, 375, 9.9),
    (-29, 375, 9.9),
    (-29, 375, 10.9),
]))
fillet3.Radius = 0.2
doc.recompute()

fillet4 = body.newObject("PartDesign::Fillet", "Fillet003")
fillet4.Base = (fillet3, edges_at(fillet3, [
    (-19.1, 375, 28),
    (-10.9, 375, 28),
    (-10.9, 375, 29),
    (-9.9, 375, 29),
    (-9.9, 375, 30),
    (-20.1, 375, 30),
    (-20.1, 375, 29),
    (-19.1, 375, 29),
    (10.9, 375, 28),
    (19.1, 375, 28),
    (19.1, 375, 29),
    (20.1, 375, 29),
    (20.1, 375, 30),
    (9.9, 375, 30),
    (9.9, 375, 29),
    (10.9, 375, 29),
]))
fillet4.Radius = 0.2

doc.recompute()
